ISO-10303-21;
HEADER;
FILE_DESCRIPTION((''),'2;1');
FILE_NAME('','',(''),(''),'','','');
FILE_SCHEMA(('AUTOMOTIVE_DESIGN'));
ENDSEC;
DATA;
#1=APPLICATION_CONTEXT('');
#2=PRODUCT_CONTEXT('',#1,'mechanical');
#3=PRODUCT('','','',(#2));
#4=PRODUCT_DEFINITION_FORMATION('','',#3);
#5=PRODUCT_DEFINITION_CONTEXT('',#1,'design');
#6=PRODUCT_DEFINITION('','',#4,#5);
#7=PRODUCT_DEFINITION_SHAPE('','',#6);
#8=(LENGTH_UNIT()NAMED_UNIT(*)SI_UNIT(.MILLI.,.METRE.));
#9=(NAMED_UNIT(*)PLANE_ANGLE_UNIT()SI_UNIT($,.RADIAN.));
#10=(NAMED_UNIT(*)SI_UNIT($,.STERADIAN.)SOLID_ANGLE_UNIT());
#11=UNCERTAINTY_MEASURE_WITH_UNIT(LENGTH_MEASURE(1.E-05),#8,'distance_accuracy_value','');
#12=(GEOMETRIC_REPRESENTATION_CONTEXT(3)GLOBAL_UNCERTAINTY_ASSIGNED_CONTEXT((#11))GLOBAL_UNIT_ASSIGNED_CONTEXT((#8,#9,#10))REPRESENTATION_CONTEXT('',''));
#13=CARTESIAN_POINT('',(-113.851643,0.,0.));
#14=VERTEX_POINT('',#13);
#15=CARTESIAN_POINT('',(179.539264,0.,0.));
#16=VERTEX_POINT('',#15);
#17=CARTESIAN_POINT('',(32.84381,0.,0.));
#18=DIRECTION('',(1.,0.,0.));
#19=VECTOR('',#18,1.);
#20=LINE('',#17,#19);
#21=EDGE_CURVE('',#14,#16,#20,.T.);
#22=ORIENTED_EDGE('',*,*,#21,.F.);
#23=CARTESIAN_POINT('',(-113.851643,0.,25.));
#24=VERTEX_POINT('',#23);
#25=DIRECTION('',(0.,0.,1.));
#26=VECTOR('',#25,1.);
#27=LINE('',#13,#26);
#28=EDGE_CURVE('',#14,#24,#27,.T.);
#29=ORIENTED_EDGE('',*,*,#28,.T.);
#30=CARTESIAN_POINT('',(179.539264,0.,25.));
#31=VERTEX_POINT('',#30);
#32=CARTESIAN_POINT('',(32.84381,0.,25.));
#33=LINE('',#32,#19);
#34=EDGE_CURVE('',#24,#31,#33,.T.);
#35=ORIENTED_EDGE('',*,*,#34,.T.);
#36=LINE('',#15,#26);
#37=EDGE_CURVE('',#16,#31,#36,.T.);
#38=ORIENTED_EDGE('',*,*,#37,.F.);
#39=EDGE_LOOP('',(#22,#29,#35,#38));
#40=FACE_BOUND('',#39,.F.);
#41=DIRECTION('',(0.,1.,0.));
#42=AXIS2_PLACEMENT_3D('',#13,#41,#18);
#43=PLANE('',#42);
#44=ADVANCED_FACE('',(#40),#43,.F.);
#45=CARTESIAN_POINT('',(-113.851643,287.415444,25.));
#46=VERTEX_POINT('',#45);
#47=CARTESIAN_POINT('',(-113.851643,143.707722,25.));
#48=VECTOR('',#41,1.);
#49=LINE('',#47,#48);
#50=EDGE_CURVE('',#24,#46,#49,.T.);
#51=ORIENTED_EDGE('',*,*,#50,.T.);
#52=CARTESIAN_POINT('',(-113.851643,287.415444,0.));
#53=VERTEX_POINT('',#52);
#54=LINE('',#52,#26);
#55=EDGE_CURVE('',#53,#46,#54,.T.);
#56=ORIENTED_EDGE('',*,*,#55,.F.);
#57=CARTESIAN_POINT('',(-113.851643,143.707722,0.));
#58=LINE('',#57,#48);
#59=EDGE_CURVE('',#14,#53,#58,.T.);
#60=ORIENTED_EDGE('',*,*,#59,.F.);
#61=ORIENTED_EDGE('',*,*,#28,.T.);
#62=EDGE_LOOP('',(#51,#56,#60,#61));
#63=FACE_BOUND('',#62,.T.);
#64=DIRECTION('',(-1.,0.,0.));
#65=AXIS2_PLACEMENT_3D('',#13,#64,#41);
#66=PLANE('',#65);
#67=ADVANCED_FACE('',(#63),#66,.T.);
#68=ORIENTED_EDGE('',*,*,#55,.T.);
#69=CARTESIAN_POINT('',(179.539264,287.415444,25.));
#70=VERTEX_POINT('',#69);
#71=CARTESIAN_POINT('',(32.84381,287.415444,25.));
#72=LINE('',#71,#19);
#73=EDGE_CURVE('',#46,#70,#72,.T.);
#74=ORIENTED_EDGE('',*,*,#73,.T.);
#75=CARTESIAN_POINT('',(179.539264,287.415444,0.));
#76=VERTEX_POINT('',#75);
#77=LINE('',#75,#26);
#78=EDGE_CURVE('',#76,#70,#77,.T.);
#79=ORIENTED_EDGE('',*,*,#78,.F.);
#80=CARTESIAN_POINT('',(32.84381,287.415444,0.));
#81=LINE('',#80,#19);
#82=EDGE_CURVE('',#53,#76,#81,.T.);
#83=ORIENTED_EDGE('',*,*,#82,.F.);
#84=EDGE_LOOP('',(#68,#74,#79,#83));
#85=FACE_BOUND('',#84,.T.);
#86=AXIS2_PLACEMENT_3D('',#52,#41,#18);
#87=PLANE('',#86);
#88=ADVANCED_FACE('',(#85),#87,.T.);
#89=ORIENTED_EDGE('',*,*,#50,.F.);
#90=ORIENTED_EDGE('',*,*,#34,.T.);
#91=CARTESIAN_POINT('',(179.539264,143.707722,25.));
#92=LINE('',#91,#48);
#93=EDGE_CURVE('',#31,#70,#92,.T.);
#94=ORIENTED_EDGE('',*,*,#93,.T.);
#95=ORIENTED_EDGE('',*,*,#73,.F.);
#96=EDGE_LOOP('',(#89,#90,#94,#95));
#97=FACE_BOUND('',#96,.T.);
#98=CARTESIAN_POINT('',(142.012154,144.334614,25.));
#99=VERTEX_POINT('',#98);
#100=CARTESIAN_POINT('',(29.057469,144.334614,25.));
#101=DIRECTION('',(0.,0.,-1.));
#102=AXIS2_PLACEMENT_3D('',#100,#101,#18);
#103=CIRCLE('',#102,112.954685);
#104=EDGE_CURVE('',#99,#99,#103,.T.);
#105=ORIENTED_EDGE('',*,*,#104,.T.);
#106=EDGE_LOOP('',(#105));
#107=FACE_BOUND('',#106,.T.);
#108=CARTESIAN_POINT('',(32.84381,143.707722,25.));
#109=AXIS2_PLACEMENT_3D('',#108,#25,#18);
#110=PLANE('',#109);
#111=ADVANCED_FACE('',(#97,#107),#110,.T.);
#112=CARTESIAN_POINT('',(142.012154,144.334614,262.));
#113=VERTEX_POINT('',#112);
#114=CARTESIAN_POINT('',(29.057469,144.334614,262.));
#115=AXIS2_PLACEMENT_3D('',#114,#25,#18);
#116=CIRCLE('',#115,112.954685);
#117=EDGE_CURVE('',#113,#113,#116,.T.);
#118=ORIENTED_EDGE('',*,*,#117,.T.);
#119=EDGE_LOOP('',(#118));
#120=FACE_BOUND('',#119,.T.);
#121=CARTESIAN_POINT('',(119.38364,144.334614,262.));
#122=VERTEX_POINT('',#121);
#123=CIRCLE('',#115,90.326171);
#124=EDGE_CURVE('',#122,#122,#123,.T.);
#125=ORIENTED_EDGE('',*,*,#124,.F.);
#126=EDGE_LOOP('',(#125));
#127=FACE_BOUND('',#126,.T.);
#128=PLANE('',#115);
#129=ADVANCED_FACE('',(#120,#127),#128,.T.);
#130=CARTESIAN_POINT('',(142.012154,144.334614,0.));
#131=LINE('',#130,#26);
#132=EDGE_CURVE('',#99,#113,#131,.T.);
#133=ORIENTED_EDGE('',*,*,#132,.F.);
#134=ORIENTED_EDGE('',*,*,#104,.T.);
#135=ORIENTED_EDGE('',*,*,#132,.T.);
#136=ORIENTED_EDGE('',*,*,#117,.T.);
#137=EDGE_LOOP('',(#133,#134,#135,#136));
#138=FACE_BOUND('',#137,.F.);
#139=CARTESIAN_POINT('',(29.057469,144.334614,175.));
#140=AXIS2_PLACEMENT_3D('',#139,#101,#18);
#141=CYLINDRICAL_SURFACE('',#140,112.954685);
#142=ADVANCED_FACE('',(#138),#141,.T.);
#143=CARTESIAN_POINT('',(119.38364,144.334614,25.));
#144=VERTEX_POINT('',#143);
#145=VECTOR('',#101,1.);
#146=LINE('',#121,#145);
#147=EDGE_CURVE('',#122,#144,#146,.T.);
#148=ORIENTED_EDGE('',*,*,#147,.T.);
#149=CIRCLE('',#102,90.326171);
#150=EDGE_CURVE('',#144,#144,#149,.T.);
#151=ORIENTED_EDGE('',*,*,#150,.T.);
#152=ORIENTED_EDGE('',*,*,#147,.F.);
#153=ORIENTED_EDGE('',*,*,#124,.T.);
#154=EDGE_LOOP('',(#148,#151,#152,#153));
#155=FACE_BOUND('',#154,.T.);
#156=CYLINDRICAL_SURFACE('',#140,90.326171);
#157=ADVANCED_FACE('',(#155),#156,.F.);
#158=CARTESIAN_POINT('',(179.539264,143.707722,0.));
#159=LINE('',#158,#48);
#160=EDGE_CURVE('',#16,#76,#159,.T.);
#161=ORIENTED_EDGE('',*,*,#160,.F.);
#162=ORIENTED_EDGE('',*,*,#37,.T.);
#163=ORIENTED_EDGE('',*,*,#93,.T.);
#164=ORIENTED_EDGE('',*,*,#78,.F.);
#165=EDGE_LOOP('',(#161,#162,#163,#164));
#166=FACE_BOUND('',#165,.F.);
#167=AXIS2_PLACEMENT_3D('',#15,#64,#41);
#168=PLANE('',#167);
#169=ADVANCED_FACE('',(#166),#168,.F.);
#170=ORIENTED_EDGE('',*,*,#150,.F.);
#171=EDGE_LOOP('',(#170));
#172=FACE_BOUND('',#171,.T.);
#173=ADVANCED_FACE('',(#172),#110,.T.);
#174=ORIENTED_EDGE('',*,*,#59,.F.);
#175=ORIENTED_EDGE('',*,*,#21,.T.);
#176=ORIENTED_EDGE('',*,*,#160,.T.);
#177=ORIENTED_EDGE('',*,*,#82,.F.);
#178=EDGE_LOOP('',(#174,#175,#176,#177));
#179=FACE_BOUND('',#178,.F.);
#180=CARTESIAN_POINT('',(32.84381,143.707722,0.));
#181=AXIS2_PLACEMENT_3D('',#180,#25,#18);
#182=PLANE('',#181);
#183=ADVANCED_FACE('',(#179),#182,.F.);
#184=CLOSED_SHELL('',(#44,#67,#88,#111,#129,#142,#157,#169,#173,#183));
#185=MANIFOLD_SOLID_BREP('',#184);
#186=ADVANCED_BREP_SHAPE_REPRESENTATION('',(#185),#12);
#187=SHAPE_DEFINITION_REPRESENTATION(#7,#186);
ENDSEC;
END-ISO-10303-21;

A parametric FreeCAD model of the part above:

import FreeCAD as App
import Part
import Sketcher

V = App.Vector
Q = App.Units.Quantity


def add_polygon(sketch, points):
    """Adds a closed chain of lines whose ends are joined by coincident constraints."""
    first, n = sketch.GeometryCount, len(points)
    for a, b in zip(points, points[1:] + points[:1]):
        sketch.addGeometry(Part.LineSegment(App.Vector(*a, 0), App.Vector(*b, 0)), False)
    for i in range(n):
        sketch.addConstraint(Sketcher.Constraint("Coincident", first + i, 2, first + (i + 1) % n, 1))

doc = App.newDocument("Part")
params = doc.addObject("Spreadsheet::Sheet", "Params")
for row, (alias, value) in enumerate([
    ("pad1_length", "175 mm"),
    ("pad2_length", "87 mm"),
    ("pad3_length", "25 mm"),
], start=1):
    params.set(f"A{row}", alias)
    params.set(f"B{row}", "=" + value)
    params.setAlias(f"B{row}", alias)

body = doc.addObject("PartDesign::Body", "Body")

# Sketch on XY plane
sketch1 = body.newObject("Sketcher::SketchObject", "Sketch")
sketch1.AttachmentSupport = (doc.getObject("XY_Plane"), [""])
sketch1.MapMode = "FlatFace"
sketch1.addGeometry([
    Part.Circle(V(29, 144, 0), V(0, 0, 1), 113),
    Part.Circle(V(29, 144, 0), V(0, 0, 1), 90),
], False)
sketch1.addConstraint([
    Sketcher.Constraint("Coincident", 1, 3, 0, 3),
    Sketcher.Constraint("Diameter", 0, Q("225.90937 mm")),
    Sketcher.Constraint("Diameter", 1, Q("180.652342 mm")),
    Sketcher.Constraint("DistanceX", -1, 1, 0, 3, Q("29.057469 mm")),
    Sketcher.Constraint("DistanceY", -1, 1, 0, 3, Q("144.334614 mm")),
])
pad1 = body.newObject("PartDesign::Pad", "Pad")
pad1.Profile = sketch1
pad1.setExpression("Length", "Params.pad1_length")

# Sketch on XY plane
sketch2 = body.newObject("Sketcher::SketchObject", "Sketch001")
sketch2.AttachmentSupport = (doc.getObject("XY_Plane"), [""])
sketch2.MapMode = "FlatFace"
sketch2.AttachmentOffset = App.Placement(V(0, 0, 175), App.Rotation())
sketch2.addGeometry([
    Part.Circle(V(29, 144, 0), V(0, 0, 1), 113),
    Part.Circle(V(29, 144, 0), V(0, 0, 1), 90),
], False)
sketch2.addConstraint([
    Sketcher.Constraint("Coincident", 1, 3, 0, 3),
    Sketcher.Constraint("Diameter", 0, Q("225.90937 mm")),
    Sketcher.Constraint("Diameter", 1, Q("180.652342 mm")),
    Sketcher.Constraint("DistanceX", -1, 1, 0, 3, Q("29.057469 mm")),
    Sketcher.Constraint("DistanceY", -1, 1, 0, 3, Q("144.334614 mm")),
])
pad2 = body.newObject("PartDesign::Pad", "Pad001")
pad2.Profile = sketch2
pad2.setExpression("Length", "Params.pad2_length")

# Sketch on XY plane
sketch3 = body.newObject("Sketcher::SketchObject", "Sketch002")
sketch3.AttachmentSupport = (doc.getObject("XY_Plane"), [""])
sketch3.MapMode = "FlatFace"
add_polygon(sketch3, [(-114, 287), (-114, 0), (180, 0), (180, 287)])  # lines 0-3
sketch3.addConstraint([
    Sketcher.Constraint("Vertical", 0),
    Sketcher.Constraint("Horizontal", 1),
    Sketcher.Constraint("Vertical", 2),
    Sketcher.Constraint("Horizontal", 3),
    Sketcher.Constraint("PointOnObject", 0, 2, -1),
    Sketcher.Constraint("DistanceX", 1, 1, 1, 2, Q("293.390907 mm")),
    Sketcher.Constraint("DistanceY", 0, 2, 0, 1, Q("287.415445 mm")),
    Sketcher.Constraint("DistanceX", 0, 2, -1, 1, Q("113.851643 mm")),
])
pad3 = body.newObject("PartDesign::Pad", "Pad002")
pad3.Profile = sketch3
pad3.setExpression("Length", "Params.pad3_length")

doc.recompute()
